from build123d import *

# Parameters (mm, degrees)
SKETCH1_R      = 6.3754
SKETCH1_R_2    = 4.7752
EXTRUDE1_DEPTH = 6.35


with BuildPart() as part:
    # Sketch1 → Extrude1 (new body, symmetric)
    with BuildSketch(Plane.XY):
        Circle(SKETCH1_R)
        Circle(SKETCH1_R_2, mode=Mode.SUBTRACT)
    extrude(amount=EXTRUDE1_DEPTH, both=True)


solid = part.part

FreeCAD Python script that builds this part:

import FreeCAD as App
import Part
import Sketcher
from FreeCAD import Vector
Q = App.Units.Quantity

doc = App.newDocument("Part")
params = doc.addObject("Spreadsheet::Sheet", "Params")
for row, (alias, value) in enumerate([
    ("sketch1_diameter", "0.502 in"),
    ("sketch1_diameter2", "0.376 in"),
    ("pad1_length", "0.5 in"),
], start=1):
    params.set(f"A{row}", alias)
    params.set(f"B{row}", "=" + value)
    params.setAlias(f"B{row}", alias)

body = doc.addObject("PartDesign::Body", "Body")

sketch1 = body.newObject("Sketcher::SketchObject", "Sketch")
sketch1.AttachmentSupport = (doc.getObject("XY_Plane"), [""])
sketch1.MapMode = "FlatFace"
sketch1.addGeometry([
    Part.Circle(Vector(0, 0, 0), Vector(0, 0, 1), 6.3754),
    Part.Circle(Vector(0, 0, 0), Vector(0, 0, 1), 4.7752),
], False)
sketch1.addConstraint([
    Sketcher.Constraint("Coincident", 0, 3, -1, 1),
    Sketcher.Constraint("Coincident", 1, 3, -1, 1),
    Sketcher.Constraint("Diameter", 0, Q("0.502 in")),
    Sketcher.Constraint("Diameter", 1, Q("0.376 in")),
])
sketch1.setExpression("Constraints[2]", "Params.sketch1_diameter")
sketch1.setExpression("Constraints[3]", "Params.sketch1_diameter2")
pad1 = body.newObject("PartDesign::Pad", "Pad")
pad1.Profile = sketch1
pad1.setExpression("Length", "Params.pad1_length")
pad1.Midplane = True

doc.recompute()
